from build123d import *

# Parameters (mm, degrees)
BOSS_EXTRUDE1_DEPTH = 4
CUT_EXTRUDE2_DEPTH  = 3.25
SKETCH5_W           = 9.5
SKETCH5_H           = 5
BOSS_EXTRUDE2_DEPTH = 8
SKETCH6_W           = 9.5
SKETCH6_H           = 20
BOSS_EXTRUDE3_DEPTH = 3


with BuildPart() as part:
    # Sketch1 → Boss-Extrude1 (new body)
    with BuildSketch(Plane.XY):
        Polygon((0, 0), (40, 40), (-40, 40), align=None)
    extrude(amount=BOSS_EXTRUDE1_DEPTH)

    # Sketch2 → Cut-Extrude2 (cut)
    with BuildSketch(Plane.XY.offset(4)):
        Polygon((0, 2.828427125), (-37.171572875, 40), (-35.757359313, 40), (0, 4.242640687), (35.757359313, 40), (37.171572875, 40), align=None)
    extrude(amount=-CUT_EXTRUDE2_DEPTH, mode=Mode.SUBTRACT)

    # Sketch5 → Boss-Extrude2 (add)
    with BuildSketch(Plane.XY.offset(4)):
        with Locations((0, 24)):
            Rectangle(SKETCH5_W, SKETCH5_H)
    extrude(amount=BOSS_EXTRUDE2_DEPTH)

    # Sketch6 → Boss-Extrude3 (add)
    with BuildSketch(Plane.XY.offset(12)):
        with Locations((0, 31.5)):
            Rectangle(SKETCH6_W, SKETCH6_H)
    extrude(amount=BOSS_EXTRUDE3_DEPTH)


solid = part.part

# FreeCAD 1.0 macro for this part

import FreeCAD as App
import Part
import Sketcher
Q = App.Units.Quantity


def add_polygon(sketch, points):
    """Adds a closed chain of lines whose ends are joined by coincident constraints."""
    first, n = sketch.GeometryCount, len(points)
    for a, b in zip(points, points[1:] + points[:1]):
        sketch.addGeometry(Part.LineSegment(App.Vector(*a, 0), App.Vector(*b, 0)), False)
    for i in range(n):
        sketch.addConstraint(Sketcher.Constraint("Coincident", first + i, 2, first + (i + 1) % n, 1))

doc = App.newDocument("Part")
body = doc.addObject("PartDesign::Body", "Body")

sketch1 = body.newObject("Sketcher::SketchObject", "Sketch")
sketch1.AttachmentSupport = (doc.getObject("XY_Plane"), [""])
sketch1.MapMode = "FlatFace"
add_polygon(sketch1, [(0, 0), (40, 40), (-40, 40)])
sketch1.addConstraint([
    Sketcher.Constraint("Horizontal", 1),
    Sketcher.Constraint("Coincident", 2, 2, -1, 1),
    Sketcher.Constraint("Perpendicular", 0, 2),
    Sketcher.Constraint("Equal", 0, 2),
    Sketcher.Constraint("DistanceX", 1, 2, 1, 1, Q("80 mm")),
])
pad1 = body.newObject("PartDesign::Pad", "Pad")
pad1.Profile = sketch1
pad1.Length = 4

sketch2 = body.newObject("Sketcher::SketchObject", "Sketch001")
sketch2.AttachmentSupport = (doc.getObject("XY_Plane"), [""])
sketch2.MapMode = "FlatFace"
sketch2.AttachmentOffset = App.Placement(App.Vector(0, 0, 4), App.Rotation())
add_polygon(sketch2, [(-37.171573, 40), (0, 2.828427), (37.171573, 40), (35.757359, 40), (0, 4.242641), (-35.757359, 40)])
sketch2.addConstraint([
    Sketcher.Constraint("Horizontal", 2),
    Sketcher.Constraint("Horizontal", 5),
    Sketcher.Constraint("Symmetric", 2, 2, 4, 2, -2),
    Sketcher.Constraint("PointOnObject", 0, 2, -2),
    Sketcher.Constraint("PointOnObject", 3, 2, -2),
    Sketcher.Constraint("Perpendicular", 0, 1),
    Sketcher.Constraint("Parallel", 1, 3),
    Sketcher.Constraint("Perpendicular", 3, 4),
    Sketcher.Constraint("DistanceY", -1, 1, 1, 2, Q("40 mm")),
    Sketcher.Constraint("DistanceX", 2, 2, 2, 1, Q("1.414214 mm")),
    Sketcher.Constraint("DistanceX", -1, 1, 2, 2, Q("35.757359 mm")),
])
pocket1 = body.newObject("PartDesign::Pocket", "Pocket")
pocket1.Profile = sketch2
pocket1.Length = 3.25

sketch3 = body.newObject("Sketcher::SketchObject", "Sketch002")
sketch3.AttachmentSupport = (doc.getObject("XY_Plane"), [""])
sketch3.MapMode = "FlatFace"
sketch3.AttachmentOffset = App.Placement(App.Vector(0, 0, 4), App.Rotation())
add_polygon(sketch3, [(-4.75, 26.5), (-4.75, 21.5), (4.75, 21.5), (4.75, 26.5)])
sketch3.addConstraint([
    Sketcher.Constraint("Vertical", 0),
    Sketcher.Constraint("Horizontal", 1),
    Sketcher.Constraint("Vertical", 2),
    Sketcher.Constraint("Horizontal", 3),
    Sketcher.Constraint("DistanceY", 0, 2, 0, 1, Q("5 mm")),
    Sketcher.Constraint("DistanceX", 1, 1, 1, 2, Q("9.5 mm")),
    Sketcher.Constraint("DistanceY", -1, 1, 0, 2, Q("21.5 mm")),
    Sketcher.Constraint("DistanceX", 0, 2, -1, 1, Q("4.75 mm")),
])
pad2 = body.newObject("PartDesign::Pad", "Pad001")
pad2.Profile = sketch3
pad2.Length = 8

sketch4 = body.newObject("Sketcher::SketchObject", "Sketch003")
sketch4.AttachmentSupport = (doc.getObject("XY_Plane"), [""])
sketch4.MapMode = "FlatFace"
sketch4.AttachmentOffset = App.Placement(App.Vector(0, 0, 12), App.Rotation())
add_polygon(sketch4, [(-4.75, 41.5), (-4.75, 21.5), (4.75, 21.5), (4.75, 41.5)])
sketch4.addConstraint([
    Sketcher.Constraint("Vertical", 0),
    Sketcher.Constraint("Horizontal", 1),
    Sketcher.Constraint("Vertical", 2),
    Sketcher.Constraint("Horizontal", 3),
    Sketcher.Constraint("DistanceY", 0, 2, 0, 1, Q("20 mm")),
    Sketcher.Constraint("DistanceX", 1, 1, 1, 2, Q("9.5 mm")),
    Sketcher.Constraint("DistanceY", -1, 1, 0, 2, Q("21.5 mm")),
    Sketcher.Constraint("DistanceX", 0, 2, -1, 1, Q("4.75 mm")),
])
pad3 = body.newObject("PartDesign::Pad", "Pad002")
pad3.Profile = sketch4
pad3.Length = 3

doc.recompute()
